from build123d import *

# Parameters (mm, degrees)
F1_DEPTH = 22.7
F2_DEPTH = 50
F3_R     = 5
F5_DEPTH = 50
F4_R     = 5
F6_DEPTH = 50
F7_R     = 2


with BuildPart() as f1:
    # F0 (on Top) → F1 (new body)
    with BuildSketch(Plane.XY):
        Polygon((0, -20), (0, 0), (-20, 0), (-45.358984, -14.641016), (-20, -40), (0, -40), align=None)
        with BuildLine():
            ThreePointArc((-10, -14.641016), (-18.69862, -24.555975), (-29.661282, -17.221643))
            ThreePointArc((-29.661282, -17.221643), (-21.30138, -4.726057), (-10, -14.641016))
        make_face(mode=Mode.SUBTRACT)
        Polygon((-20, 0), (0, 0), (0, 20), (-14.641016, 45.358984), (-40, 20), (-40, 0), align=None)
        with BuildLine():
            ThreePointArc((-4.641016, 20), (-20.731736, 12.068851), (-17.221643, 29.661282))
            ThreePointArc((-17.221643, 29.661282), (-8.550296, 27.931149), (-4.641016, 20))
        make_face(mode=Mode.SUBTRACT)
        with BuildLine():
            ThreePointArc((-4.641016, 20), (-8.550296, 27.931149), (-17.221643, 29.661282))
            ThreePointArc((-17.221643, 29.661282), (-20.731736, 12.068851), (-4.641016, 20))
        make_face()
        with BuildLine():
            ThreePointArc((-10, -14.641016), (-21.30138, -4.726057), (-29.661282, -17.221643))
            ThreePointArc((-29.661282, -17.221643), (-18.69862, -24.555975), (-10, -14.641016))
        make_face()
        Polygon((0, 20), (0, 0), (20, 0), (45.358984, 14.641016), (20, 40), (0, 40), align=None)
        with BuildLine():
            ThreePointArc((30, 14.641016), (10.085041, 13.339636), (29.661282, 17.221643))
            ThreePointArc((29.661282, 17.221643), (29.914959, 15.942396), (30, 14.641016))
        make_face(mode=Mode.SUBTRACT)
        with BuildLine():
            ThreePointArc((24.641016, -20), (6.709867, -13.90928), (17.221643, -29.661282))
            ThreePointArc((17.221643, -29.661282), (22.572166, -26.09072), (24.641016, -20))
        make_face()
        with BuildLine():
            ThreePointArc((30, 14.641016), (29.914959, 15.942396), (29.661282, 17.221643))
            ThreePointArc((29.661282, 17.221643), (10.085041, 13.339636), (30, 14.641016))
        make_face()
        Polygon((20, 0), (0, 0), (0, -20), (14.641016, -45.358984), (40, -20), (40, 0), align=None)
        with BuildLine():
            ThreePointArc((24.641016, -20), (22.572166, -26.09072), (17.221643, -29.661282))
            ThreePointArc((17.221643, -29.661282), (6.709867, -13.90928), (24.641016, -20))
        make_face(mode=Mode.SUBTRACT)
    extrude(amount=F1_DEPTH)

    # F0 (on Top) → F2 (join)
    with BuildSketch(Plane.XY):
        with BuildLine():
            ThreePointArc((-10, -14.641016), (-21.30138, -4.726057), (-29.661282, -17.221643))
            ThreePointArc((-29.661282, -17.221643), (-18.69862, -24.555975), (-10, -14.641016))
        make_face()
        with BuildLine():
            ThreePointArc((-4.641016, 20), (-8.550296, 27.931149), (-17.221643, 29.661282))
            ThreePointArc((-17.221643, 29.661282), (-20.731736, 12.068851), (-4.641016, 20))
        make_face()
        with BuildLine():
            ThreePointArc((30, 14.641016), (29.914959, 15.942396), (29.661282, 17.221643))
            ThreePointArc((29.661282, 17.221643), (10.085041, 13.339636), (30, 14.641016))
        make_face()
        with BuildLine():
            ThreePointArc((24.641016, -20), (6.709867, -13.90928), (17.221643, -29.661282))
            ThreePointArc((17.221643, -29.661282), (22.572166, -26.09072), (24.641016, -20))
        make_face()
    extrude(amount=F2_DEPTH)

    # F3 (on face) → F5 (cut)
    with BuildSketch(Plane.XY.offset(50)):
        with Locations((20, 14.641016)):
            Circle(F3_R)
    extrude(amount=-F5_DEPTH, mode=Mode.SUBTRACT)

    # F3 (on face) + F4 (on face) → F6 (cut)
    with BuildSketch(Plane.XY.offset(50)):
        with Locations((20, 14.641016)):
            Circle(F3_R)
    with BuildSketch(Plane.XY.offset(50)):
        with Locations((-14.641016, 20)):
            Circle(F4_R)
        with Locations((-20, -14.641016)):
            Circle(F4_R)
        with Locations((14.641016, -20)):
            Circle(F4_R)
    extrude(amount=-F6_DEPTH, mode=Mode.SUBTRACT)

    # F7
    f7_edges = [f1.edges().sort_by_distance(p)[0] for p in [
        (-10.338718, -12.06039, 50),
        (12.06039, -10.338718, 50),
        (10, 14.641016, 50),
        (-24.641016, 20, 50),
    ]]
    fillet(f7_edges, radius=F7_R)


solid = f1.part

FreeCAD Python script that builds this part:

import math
import FreeCAD as App
import Part
import Sketcher
Q = App.Units.Quantity


def edges_at(feature, points):
    """Names of the edges that pass closest to the given points."""
    edges = feature.Shape.Edges
    near = lambda p: min(range(len(edges)), key=lambda i: edges[i].distToShape(Part.Vertex(*p))[0])
    return sorted({f"Edge{near(p) + 1}" for p in points})

doc = App.newDocument("Part")
body = doc.addObject("PartDesign::Body", "Body")

sketch1 = body.newObject("Sketcher::SketchObject", "Sketch")
sketch1.AttachmentSupport = (doc.getObject("XY_Plane"), [""])
sketch1.MapMode = "FlatFace"
sketch1.addGeometry([
    Part.LineSegment(App.Vector(0, -40, 0), App.Vector(0, -20, 0)),
    Part.LineSegment(App.Vector(0, -20, 0), App.Vector(14.641016, -45.358984, 0)),
    Part.LineSegment(App.Vector(14.641016, -45.358984, 0), App.Vector(40, -20, 0)),
    Part.LineSegment(App.Vector(40, -20, 0), App.Vector(40, 0, 0)),
    Part.LineSegment(App.Vector(40, 0, 0), App.Vector(20, 0, 0)),
    Part.LineSegment(App.Vector(20, 0, 0), App.Vector(45.358984, 14.641016, 0)),
    Part.LineSegment(App.Vector(45.358984, 14.641016, 0), App.Vector(20, 40, 0)),
    Part.LineSegment(App.Vector(20, 40, 0), App.Vector(0, 40, 0)),
    Part.LineSegment(App.Vector(0, 40, 0), App.Vector(0, 20, 0)),
    Part.LineSegment(App.Vector(0, 20, 0), App.Vector(-14.641016, 45.358984, 0)),
    Part.LineSegment(App.Vector(-14.641016, 45.358984, 0), App.Vector(-40, 20, 0)),
    Part.LineSegment(App.Vector(-40, 20, 0), App.Vector(-40, 0, 0)),
    Part.LineSegment(App.Vector(-40, 0, 0), App.Vector(-20, 0, 0)),
    Part.LineSegment(App.Vector(-20, 0, 0), App.Vector(-45.358984, -14.641016, 0)),
    Part.LineSegment(App.Vector(-45.358984, -14.641016, 0), App.Vector(-20, -40, 0)),
    Part.LineSegment(App.Vector(-20, -40, 0), App.Vector(0, -40, 0)),
    Part.ArcOfCircle(Part.Circle(App.Vector(14.641016, -20, 0), App.Vector(0, 0, 1), 10), math.radians(0.000002), math.radians(284.95514)),
    Part.ArcOfCircle(Part.Circle(App.Vector(14.641017, -20.000001, 0), App.Vector(0, 0, 1), 9.999999), math.radians(-75.044865), math.radians(0.000007)),
], False)
sketch1.addConstraint([
    Sketcher.Constraint("Coincident", 0, 2, 1, 1),
    Sketcher.Constraint("Coincident", 1, 2, 2, 1),
    Sketcher.Constraint("Coincident", 2, 2, 3, 1),
    Sketcher.Constraint("Coincident", 3, 2, 4, 1),
    Sketcher.Constraint("Coincident", 4, 2, 5, 1),
    Sketcher.Constraint("Coincident", 5, 2, 6, 1),
    Sketcher.Constraint("Coincident", 6, 2, 7, 1),
    Sketcher.Constraint("Coincident", 7, 2, 8, 1),
    Sketcher.Constraint("Coincident", 8, 2, 9, 1),
    Sketcher.Constraint("Coincident", 9, 2, 10, 1),
    Sketcher.Constraint("Coincident", 10, 2, 11, 1),
    Sketcher.Constraint("Coincident", 11, 2, 12, 1),
    Sketcher.Constraint("Coincident", 12, 2, 13, 1),
    Sketcher.Constraint("Coincident", 13, 2, 14, 1),
    Sketcher.Constraint("Coincident", 14, 2, 15, 1),
    Sketcher.Constraint("Coincident", 15, 2, 0, 1),
    Sketcher.Constraint("Tangent", 16, 1, 17, 2),
    Sketcher.Constraint("Coincident", 17, 1, 16, 2),
    Sketcher.Constraint("Vertical", 0),
    Sketcher.Constraint("Vertical", 3),
    Sketcher.Constraint("Horizontal", 4),
    Sketcher.Constraint("Horizontal", 7),
    Sketcher.Constraint("Vertical", 8),
    Sketcher.Constraint("Vertical", 11),
    Sketcher.Constraint("Horizontal", 12),
    Sketcher.Constraint("Horizontal", 15),
    Sketcher.Constraint("Symmetric", 0, 2, 8, 2, -1, 1),
    Sketcher.Constraint("Symmetric", 1, 2, 9, 2, -1, 1),
    Sketcher.Constraint("Symmetric", 2, 2, 10, 2, -1, 1),
    Sketcher.Constraint("Symmetric", 4, 2, 12, 2, -1, 1),
    Sketcher.Constraint("Symmetric", 5, 2, 13, 2, -1, 1),
    Sketcher.Constraint("Symmetric", 6, 2, 14, 2, -1, 1),
    Sketcher.Constraint("PointOnObject", 0, 2, -2),
    Sketcher.Constraint("PointOnObject", 3, 2, -1),
    Sketcher.Constraint("Perpendicular", 1, 5),
    Sketcher.Constraint("Perpendicular", 2, 6),
    Sketcher.Constraint("Horizontal", 17, 3, 0, 2),
    Sketcher.Constraint("Horizontal", 0, 2, 2, 2),
    Sketcher.Constraint("Horizontal", 2, 2, 16, 1),
    Sketcher.Constraint("Vertical", 17, 3, 1, 2),
    Sketcher.Constraint("Vertical", 4, 2, 6, 2),
    Sketcher.Constraint("Equal", 4, 7),
    Sketcher.Constraint("Equal", 15, 0),
    Sketcher.Constraint("Equal", 0, 3),
    Sketcher.Constraint("Radius", 16, 10.0),
    Sketcher.Constraint("DistanceX", 4, 2, 4, 1, 20.0),
    Sketcher.Constraint("Angle", 1, Q("-60 deg")),
    Sketcher.Constraint("Angle", 2, Q("45 deg")),
    Sketcher.Constraint("DistanceY", 17, 1, -1, 1, 29.661282),
])
pad1 = body.newObject("PartDesign::Pad", "Pad")
pad1.Profile = sketch1
pad1.Length = 22.7

sketch2 = body.newObject("Sketcher::SketchObject", "Sketch001")
sketch2.AttachmentSupport = (doc.getObject("XY_Plane"), [""])
sketch2.MapMode = "FlatFace"
sketch2.addGeometry([
    Part.ArcOfCircle(Part.Circle(App.Vector(-20, -14.641016, 0), App.Vector(0, 0, 1), 10), math.radians(0), math.radians(194.95514)),
    Part.ArcOfCircle(Part.Circle(App.Vector(-20, -14.641016, 0), App.Vector(0, 0, 1), 10), math.radians(-165.044859), math.radians(0)),
    Part.ArcOfCircle(Part.Circle(App.Vector(-14.641017, 19.999999, 0), App.Vector(0, 0, 1), 10.000001), math.radians(0.000004), math.radians(104.955135)),
    Part.ArcOfCircle(Part.Circle(App.Vector(-14.641016, 20, 0), App.Vector(0, 0, 1), 10), math.radians(104.955141), math.radians(359.999998)),
    Part.ArcOfCircle(Part.Circle(App.Vector(19.999994, 14.641016, 0), App.Vector(0, 0, 1), 10.000006), math.radians(-0.000002), math.radians(14.95513)),
    Part.ArcOfCircle(Part.Circle(App.Vector(20, 14.641017, 0), App.Vector(0, 0, 1), 10), math.radians(14.955134), math.radians(359.999994)),
    Part.ArcOfCircle(Part.Circle(App.Vector(14.641016, -20, 0), App.Vector(0, 0, 1), 10), math.radians(0.000002), math.radians(284.95514)),
    Part.ArcOfCircle(Part.Circle(App.Vector(14.641017, -20.000001, 0), App.Vector(0, 0, 1), 9.999999), math.radians(-75.044865), math.radians(0.000007)),
], False)
sketch2.addConstraint([
    Sketcher.Constraint("Tangent", 0, 1, 1, 2),
    Sketcher.Constraint("Coincident", 1, 1, 0, 2),
    Sketcher.Constraint("Tangent", 2, 1, 3, 2),
    Sketcher.Constraint("Coincident", 3, 1, 2, 2),
    Sketcher.Constraint("Tangent", 4, 1, 5, 2),
    Sketcher.Constraint("Coincident", 5, 1, 4, 2),
    Sketcher.Constraint("Tangent", 6, 1, 7, 2),
    Sketcher.Constraint("Coincident", 7, 1, 6, 2),
    Sketcher.Constraint("Equal", 1, 2),
    Sketcher.Constraint("Equal", 3, 5),
    Sketcher.Constraint("Equal", 5, 6),
    Sketcher.Constraint("Symmetric", 0, 3, 4, 3, -1, 1),
    Sketcher.Constraint("Symmetric", 2, 3, 6, 3, -1, 1),
    Sketcher.Constraint("Horizontal", 1, 3, 0, 1),
    Sketcher.Constraint("Horizontal", 3, 3, 2, 1),
    Sketcher.Constraint("Horizontal", 5, 3, 4, 1),
    Sketcher.Constraint("Horizontal", 7, 3, 6, 1),
    Sketcher.Constraint("Radius", 0, 10.0),
    Sketcher.Constraint("DistanceX", 0, 3, -1, 1, 20.0),
    Sketcher.Constraint("DistanceY", -1, 1, 2, 3, 19.999999),
    Sketcher.Constraint("DistanceY", -1, 1, 3, 1, 29.661282),
    Sketcher.Constraint("DistanceX", -1, 1, 5, 1, 29.661282),
    Sketcher.Constraint("DistanceY", 7, 1, -1, 1, 29.661282),
    Sketcher.Constraint("DistanceX", 3, 3, 4, 3, 34.64101),
    Sketcher.Constraint("DistanceY", 7, 3, 5, 3, 34.641018),
    Sketcher.Constraint("DistanceX", 1, 1, 0, 3, 9.661282),
])
pad2 = body.newObject("PartDesign::Pad", "Pad001")
pad2.Profile = sketch2
pad2.Length = 50

sketch3 = body.newObject("Sketcher::SketchObject", "Sketch002")
sketch3.AttachmentSupport = (doc.getObject("XY_Plane"), [""])
sketch3.MapMode = "FlatFace"
sketch3.AttachmentOffset = App.Placement(App.Vector(0, 0, 50), App.Rotation())
sketch3.addGeometry(Part.Circle(App.Vector(20, 14.641016, 0), App.Vector(0, 0, 1), 5), False)
sketch3.addConstraint([
    Sketcher.Constraint("Diameter", 0, 10.0),
    Sketcher.Constraint("DistanceX", -1, 1, 0, 3, 20.0),
    Sketcher.Constraint("DistanceY", -1, 1, 0, 3, 14.641016),
])
pocket1 = body.newObject("PartDesign::Pocket", "Pocket")
pocket1.Profile = sketch3
pocket1.Length = 50

sketch4 = body.newObject("Sketcher::SketchObject", "Sketch003")
sketch4.AttachmentSupport = (doc.getObject("XY_Plane"), [""])
sketch4.MapMode = "FlatFace"
sketch4.AttachmentOffset = App.Placement(App.Vector(0, 0, 50), App.Rotation())
sketch4.addGeometry([
    Part.Circle(App.Vector(20, 14.641016, 0), App.Vector(0, 0, 1), 5),
    Part.Circle(App.Vector(-14.641016, 20, 0), App.Vector(0, 0, 1), 5),
    Part.Circle(App.Vector(-20, -14.641016, 0), App.Vector(0, 0, 1), 5),
    Part.Circle(App.Vector(14.641016, -20, 0), App.Vector(0, 0, 1), 5),
], False)
sketch4.addConstraint([
    Sketcher.Constraint("Equal", 0, 1),
    Sketcher.Constraint("Equal", 1, 2),
    Sketcher.Constraint("Equal", 2, 3),
    Sketcher.Constraint("Symmetric", 0, 3, 2, 3, -1, 1),
    Sketcher.Constraint("Symmetric", 1, 3, 3, 3, -1, 1),
    Sketcher.Constraint("Diameter", 0, 10.0),
    Sketcher.Constraint("DistanceX", -1, 1, 0, 3, 20.0),
    Sketcher.Constraint("DistanceY", -1, 1, 1, 3, 20.0),
    Sketcher.Constraint("DistanceY", -1, 1, 0, 3, 14.641016),
    Sketcher.Constraint("DistanceX", 1, 3, -1, 1, 14.641016),
])
pocket2 = body.newObject("PartDesign::Pocket", "Pocket001")
pocket2.Profile = sketch4
pocket2.Length = 50
doc.recompute()

fillet = body.newObject("PartDesign::Fillet", "Fillet")
fillet.Base = (pocket2, edges_at(pocket2, [
    (-21.301, -4.726, 50),
    (6.71, -13.909, 50),
    (10.085, 13.34, 50),
    (-20.732, 12.069, 50),
]))
fillet.Radius = 2

doc.recompute()
